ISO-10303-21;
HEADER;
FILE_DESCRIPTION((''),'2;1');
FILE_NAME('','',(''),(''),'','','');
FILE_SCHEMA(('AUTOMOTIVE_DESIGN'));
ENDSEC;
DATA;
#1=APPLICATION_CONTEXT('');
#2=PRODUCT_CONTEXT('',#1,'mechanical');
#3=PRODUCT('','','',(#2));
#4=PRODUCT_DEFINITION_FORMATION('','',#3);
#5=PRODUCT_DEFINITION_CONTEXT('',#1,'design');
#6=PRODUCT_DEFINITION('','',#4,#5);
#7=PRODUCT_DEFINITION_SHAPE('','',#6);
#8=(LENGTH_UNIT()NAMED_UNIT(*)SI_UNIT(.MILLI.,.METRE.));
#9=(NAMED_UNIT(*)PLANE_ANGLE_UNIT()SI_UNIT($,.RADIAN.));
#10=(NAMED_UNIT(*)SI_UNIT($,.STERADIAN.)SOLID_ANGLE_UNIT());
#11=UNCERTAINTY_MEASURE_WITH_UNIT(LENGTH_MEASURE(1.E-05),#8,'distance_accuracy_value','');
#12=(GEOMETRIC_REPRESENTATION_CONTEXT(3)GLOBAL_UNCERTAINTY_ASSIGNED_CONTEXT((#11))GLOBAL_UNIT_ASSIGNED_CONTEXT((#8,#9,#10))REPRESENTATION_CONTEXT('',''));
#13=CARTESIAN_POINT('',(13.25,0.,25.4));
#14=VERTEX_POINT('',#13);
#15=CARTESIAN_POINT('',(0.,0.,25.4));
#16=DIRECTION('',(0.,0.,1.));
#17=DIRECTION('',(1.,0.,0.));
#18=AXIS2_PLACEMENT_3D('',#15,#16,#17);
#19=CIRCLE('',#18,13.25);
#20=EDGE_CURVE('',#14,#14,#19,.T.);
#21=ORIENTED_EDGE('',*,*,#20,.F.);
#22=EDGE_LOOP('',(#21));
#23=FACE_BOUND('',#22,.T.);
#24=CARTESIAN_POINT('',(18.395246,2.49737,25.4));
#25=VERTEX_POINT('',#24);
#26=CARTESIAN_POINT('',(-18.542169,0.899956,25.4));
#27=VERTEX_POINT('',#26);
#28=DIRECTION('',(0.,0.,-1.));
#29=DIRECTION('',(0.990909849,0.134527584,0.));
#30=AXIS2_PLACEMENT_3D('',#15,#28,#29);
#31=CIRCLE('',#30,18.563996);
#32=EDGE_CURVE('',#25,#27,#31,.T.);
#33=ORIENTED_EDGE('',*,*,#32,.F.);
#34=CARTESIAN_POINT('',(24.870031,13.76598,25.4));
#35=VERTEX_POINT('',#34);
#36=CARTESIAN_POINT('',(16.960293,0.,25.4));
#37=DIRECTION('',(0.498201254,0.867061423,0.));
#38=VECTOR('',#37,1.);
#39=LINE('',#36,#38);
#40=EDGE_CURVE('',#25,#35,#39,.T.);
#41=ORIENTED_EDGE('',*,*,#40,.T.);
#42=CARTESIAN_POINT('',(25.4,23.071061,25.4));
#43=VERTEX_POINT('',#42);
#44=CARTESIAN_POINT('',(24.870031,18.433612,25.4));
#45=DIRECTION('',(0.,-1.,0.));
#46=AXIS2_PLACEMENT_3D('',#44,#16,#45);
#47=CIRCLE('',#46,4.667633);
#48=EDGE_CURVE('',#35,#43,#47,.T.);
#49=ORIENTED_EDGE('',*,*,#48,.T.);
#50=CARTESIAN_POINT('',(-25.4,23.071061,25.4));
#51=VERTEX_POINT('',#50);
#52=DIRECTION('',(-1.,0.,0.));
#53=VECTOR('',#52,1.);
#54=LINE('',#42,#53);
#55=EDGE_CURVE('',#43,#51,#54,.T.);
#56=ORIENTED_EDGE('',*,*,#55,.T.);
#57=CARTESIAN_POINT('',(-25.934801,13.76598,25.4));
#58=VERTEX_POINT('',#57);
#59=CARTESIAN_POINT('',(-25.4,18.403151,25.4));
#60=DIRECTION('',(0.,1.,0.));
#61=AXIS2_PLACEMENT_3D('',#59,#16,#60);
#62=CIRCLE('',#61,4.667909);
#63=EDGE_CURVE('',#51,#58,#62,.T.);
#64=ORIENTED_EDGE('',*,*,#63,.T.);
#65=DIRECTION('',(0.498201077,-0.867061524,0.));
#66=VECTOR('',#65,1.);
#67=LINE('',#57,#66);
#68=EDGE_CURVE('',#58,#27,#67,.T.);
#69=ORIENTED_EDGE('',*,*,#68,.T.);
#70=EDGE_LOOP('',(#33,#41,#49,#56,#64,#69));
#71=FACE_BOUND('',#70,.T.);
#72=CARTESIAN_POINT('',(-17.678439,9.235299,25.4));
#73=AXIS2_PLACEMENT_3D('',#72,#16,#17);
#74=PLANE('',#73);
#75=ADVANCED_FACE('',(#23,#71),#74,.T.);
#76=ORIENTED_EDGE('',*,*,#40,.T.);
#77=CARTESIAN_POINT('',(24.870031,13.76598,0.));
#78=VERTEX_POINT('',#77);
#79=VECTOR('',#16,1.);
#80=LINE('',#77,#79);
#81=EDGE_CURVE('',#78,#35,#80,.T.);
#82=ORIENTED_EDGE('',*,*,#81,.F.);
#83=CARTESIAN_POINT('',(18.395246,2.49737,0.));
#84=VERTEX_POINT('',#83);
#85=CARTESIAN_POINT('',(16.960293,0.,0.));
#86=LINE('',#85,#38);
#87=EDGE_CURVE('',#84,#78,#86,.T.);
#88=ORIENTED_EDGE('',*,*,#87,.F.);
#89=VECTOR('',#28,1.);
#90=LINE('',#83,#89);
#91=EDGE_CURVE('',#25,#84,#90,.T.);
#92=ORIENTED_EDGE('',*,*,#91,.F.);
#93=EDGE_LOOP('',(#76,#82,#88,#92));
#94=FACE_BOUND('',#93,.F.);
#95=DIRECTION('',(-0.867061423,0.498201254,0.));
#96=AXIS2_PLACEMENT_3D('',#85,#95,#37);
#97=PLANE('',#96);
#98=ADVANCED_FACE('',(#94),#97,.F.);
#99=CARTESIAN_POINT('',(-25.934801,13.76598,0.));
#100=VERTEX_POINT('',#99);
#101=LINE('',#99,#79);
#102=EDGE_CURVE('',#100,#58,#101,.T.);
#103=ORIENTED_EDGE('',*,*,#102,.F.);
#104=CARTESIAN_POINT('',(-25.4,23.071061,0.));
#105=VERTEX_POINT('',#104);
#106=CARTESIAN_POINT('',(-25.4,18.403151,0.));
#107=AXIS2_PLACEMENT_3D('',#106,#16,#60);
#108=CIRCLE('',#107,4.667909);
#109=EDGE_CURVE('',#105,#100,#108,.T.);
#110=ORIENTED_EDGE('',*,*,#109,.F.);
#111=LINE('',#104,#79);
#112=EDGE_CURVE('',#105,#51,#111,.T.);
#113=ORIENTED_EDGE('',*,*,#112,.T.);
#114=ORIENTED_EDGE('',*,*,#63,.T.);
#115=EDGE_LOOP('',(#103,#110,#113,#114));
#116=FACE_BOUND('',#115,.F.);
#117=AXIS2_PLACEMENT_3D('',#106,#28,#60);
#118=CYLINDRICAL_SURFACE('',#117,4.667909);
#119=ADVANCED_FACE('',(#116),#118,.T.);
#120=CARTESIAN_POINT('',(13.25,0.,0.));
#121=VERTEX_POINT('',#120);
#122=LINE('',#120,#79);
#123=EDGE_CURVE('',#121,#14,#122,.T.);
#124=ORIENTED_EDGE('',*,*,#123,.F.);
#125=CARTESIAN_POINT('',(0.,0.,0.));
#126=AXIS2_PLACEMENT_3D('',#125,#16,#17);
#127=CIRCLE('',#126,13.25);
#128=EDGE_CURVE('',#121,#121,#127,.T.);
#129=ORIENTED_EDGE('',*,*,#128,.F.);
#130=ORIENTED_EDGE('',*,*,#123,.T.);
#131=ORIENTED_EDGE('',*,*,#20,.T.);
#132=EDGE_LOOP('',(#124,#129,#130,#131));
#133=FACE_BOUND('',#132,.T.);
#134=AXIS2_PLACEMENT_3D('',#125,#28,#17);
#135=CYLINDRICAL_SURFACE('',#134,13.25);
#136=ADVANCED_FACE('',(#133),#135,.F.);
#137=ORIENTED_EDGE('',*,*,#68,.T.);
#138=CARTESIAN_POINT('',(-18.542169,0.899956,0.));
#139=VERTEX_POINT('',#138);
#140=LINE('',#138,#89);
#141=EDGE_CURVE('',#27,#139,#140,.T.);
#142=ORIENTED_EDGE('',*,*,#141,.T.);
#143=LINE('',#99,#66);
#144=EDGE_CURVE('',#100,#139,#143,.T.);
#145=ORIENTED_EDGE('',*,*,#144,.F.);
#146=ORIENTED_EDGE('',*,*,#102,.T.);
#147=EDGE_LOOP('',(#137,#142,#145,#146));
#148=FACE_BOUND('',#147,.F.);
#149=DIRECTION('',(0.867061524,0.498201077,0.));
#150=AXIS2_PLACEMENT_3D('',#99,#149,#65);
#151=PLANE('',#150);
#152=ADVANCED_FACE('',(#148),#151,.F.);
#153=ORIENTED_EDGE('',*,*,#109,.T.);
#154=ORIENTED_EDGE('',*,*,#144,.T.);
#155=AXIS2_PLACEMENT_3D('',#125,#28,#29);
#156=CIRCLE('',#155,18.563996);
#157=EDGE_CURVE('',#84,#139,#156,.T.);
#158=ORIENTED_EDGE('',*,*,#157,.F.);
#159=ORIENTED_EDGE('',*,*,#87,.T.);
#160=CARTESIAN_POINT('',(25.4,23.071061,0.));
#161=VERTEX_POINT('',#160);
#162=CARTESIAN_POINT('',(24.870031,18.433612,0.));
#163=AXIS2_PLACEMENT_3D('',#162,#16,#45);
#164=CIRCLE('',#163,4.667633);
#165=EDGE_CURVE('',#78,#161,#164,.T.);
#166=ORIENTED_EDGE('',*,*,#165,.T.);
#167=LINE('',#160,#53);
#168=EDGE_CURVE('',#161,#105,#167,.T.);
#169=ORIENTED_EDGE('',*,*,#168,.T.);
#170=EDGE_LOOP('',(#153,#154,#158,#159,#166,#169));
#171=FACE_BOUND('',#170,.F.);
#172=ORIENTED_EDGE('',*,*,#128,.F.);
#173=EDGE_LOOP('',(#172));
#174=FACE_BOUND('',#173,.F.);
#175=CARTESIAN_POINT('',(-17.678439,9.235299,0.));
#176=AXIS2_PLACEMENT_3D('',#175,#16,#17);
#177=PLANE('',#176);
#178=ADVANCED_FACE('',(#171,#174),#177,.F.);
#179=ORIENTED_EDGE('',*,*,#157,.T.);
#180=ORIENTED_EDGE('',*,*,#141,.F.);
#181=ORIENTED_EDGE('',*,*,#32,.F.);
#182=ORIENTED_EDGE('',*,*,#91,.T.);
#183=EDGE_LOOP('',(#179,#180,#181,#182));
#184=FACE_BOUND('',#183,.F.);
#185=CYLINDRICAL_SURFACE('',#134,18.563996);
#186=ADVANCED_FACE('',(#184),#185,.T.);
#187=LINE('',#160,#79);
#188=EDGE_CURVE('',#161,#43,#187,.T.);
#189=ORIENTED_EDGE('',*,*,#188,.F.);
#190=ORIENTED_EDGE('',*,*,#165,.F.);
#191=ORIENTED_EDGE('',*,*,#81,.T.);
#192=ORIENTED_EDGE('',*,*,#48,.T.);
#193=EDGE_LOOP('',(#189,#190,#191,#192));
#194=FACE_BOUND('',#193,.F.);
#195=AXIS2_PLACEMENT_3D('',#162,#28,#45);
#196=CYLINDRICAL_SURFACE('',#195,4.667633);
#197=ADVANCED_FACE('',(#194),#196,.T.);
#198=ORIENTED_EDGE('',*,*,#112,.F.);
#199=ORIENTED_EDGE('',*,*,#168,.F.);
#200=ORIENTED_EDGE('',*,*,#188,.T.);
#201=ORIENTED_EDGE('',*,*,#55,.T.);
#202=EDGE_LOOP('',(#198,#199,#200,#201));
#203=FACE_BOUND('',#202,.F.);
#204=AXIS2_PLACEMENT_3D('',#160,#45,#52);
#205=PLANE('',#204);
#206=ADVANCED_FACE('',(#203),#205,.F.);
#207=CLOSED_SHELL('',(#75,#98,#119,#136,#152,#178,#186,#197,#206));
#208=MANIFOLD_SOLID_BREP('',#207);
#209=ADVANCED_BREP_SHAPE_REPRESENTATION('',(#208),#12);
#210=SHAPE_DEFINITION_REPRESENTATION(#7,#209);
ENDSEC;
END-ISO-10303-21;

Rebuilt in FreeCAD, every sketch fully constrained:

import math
import FreeCAD as App
import Part
import Sketcher
from FreeCAD import Vector
Q = App.Units.Quantity

doc = App.newDocument("Part")
body = doc.addObject("PartDesign::Body", "Body")

# Sketch on XY plane
sketch1 = doc.addObject("Sketcher::SketchObject", "Sketch")
body.addObject(sketch1)
sketch1.AttachmentSupport = (doc.XY_Plane, [""])
sketch1.MapMode = "FlatFace"
sketch1.addGeometry([
    Part.Circle(Vector(0, 0, 0), Vector(0, 0, 1), 19),
    Part.Circle(Vector(0, 0, 0), Vector(0, 0, 1), 13),
], False)
sketch1.addConstraint([
    Sketcher.Constraint("Coincident", 0, 3, -1, 1),
    Sketcher.Constraint("Coincident", 1, 3, -1, 1),
    Sketcher.Constraint("Diameter", 1, 26.5),
    Sketcher.Constraint("Diameter", 0, 37.127992),
])
pad1 = doc.addObject("PartDesign::Pad", "Pad")
body.addObject(pad1)
pad1.Profile = sketch1
pad1.Length = Q("1 in")

# Sketch on XY plane
sketch2 = doc.addObject("Sketcher::SketchObject", "Sketch001")
body.addObject(sketch2)
sketch2.AttachmentSupport = (doc.XY_Plane, [""])
sketch2.MapMode = "FlatFace"
sketch2.addGeometry([
    Part.LineSegment(Vector(-25.9, 13.8, 0), Vector(-18, 0, 0)),  # 0
    Part.LineSegment(Vector(-18, 0, 0), Vector(-9.2, 13.8, 0)),  # 1
    Part.LineSegment(Vector(-9.2, 13.8, 0), Vector(7.8, 13.8, 0)),  # 2
    Part.LineSegment(Vector(7.8, 13.8, 0), Vector(17, 0, 0)),  # 3
    Part.LineSegment(Vector(17, 0, 0), Vector(24.9, 13.8, 0)),  # 4
    Part.ArcOfCircle(Part.Circle(Vector(24.9, 18.4, 0), Vector(0, 0, 1), 4.7), math.radians(-90), math.radians(83)),  # 5
    Part.LineSegment(Vector(25.4, 23.1, 0), Vector(-25.4, 23.1, 0)),  # 6
    Part.ArcOfCircle(Part.Circle(Vector(-25.4, 18.4, 0), Vector(0, 0, 1), 4.7), math.radians(90), math.radians(263)),  # 7
], False)
sketch2.addConstraint([
    Sketcher.Constraint("Coincident", 0, 2, 1, 1),
    Sketcher.Constraint("Coincident", 1, 2, 2, 1),
    Sketcher.Constraint("Coincident", 2, 2, 3, 1),
    Sketcher.Constraint("Coincident", 3, 2, 4, 1),
    Sketcher.Constraint("Coincident", 4, 2, 5, 1),
    Sketcher.Constraint("Coincident", 5, 2, 6, 1),
    Sketcher.Constraint("Tangent", 6, 2, 7, 1),
    Sketcher.Constraint("Coincident", 7, 2, 0, 1),
    Sketcher.Constraint("Horizontal", 2),
    Sketcher.Constraint("Horizontal", 6),
    Sketcher.Constraint("PointOnObject", 0, 2, -1),
    Sketcher.Constraint("PointOnObject", 3, 2, -1),
    Sketcher.Constraint("Horizontal", 2, 2, 4, 2),
    Sketcher.Constraint("Horizontal", 4, 2, 7, 2),
    Sketcher.Constraint("Vertical", 5, 3, 4, 2),
    Sketcher.Constraint("Equal", 0, 4),
    Sketcher.Constraint("DistanceX", 6, 2, 6, 1, Q("2 in")),
    Sketcher.Constraint("DistanceX", 7, 3, -1, 1, Q("1 in")),
    Sketcher.Constraint("Radius", 7, 4.667909),
    Sketcher.Constraint("Radius", 5, 4.667633),
    Sketcher.Constraint("DistanceX", 2, 1, 2, 2, 17.036351),
    Sketcher.Constraint("DistanceX", 7, 2, -1, 1, 25.934801),
    Sketcher.Constraint("Distance", 0, 15.876589),
    Sketcher.Constraint("Distance", 1, 16.350438),
    Sketcher.Constraint("DistanceY", -1, 1, 7, 3, 18.403151),
])
pad2 = doc.addObject("PartDesign::Pad", "Pad001")
body.addObject(pad2)
pad2.Profile = sketch2
pad2.Length = Q("1 in")

doc.recompute()
